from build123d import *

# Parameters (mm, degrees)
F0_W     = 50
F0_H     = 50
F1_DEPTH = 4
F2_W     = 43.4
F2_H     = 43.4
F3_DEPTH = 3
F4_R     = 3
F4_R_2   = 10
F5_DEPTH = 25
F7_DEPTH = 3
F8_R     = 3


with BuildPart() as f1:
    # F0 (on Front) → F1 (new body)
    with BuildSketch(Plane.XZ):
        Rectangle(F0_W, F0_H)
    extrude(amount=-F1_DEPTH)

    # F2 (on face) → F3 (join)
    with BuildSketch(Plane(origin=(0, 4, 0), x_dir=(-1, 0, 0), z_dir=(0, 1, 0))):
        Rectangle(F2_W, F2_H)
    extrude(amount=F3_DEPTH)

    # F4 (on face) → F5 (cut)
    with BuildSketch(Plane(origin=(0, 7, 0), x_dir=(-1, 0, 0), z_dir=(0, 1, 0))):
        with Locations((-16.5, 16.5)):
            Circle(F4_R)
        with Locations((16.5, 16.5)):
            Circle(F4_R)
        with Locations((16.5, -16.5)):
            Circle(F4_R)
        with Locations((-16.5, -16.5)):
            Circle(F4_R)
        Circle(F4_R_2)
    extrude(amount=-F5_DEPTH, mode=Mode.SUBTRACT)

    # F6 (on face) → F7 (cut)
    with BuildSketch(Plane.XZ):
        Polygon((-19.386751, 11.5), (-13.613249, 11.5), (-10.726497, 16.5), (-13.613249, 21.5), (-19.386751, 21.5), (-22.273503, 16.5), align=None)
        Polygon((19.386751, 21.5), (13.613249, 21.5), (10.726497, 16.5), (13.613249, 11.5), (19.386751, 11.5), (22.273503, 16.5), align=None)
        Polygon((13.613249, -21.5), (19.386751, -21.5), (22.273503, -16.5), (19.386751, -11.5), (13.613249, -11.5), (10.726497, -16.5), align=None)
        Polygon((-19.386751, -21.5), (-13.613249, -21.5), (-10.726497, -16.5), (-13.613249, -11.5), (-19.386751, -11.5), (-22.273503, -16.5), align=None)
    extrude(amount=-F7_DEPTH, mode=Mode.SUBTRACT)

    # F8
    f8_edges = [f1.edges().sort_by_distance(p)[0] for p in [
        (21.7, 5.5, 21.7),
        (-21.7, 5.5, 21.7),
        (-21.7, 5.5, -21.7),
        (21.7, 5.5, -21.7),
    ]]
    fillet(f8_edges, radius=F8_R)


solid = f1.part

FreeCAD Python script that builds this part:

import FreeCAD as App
import Part
import Sketcher

V = App.Vector
Q = App.Units.Quantity


def edges_at(feature, points):
    """Names of the edges that pass closest to the given points."""
    edges = feature.Shape.Edges
    near = lambda p: min(range(len(edges)), key=lambda i: edges[i].distToShape(Part.Vertex(*p))[0])
    return sorted({f"Edge{near(p) + 1}" for p in points})


def add_polygon(sketch, points):
    """Adds a closed chain of lines whose ends are joined by coincident constraints."""
    first, n = sketch.GeometryCount, len(points)
    for a, b in zip(points, points[1:] + points[:1]):
        sketch.addGeometry(Part.LineSegment(App.Vector(*a, 0), App.Vector(*b, 0)), False)
    for i in range(n):
        sketch.addConstraint(Sketcher.Constraint("Coincident", first + i, 2, first + (i + 1) % n, 1))

doc = App.newDocument("Part")
body = doc.addObject("PartDesign::Body", "Body")

# Sketch on XZ plane
sketch1 = body.newObject("Sketcher::SketchObject", "Sketch")
sketch1.AttachmentSupport = (doc.getObject("XZ_Plane"), [""])
sketch1.MapMode = "FlatFace"
add_polygon(sketch1, [(-25, 25), (-25, -25), (25, -25), (25, 25)])  # lines 0-3
sketch1.addConstraint([
    Sketcher.Constraint("Vertical", 0),
    Sketcher.Constraint("Horizontal", 1),
    Sketcher.Constraint("Vertical", 2),
    Sketcher.Constraint("Horizontal", 3),
    Sketcher.Constraint("Symmetric", 0, 2, 2, 2, -1, 1),
    Sketcher.Constraint("Equal", 3, 0),
    Sketcher.Constraint("DistanceX", 1, 1, 1, 2, Q("50 mm")),
])
pad1 = body.newObject("PartDesign::Pad", "Pad")
pad1.Profile = sketch1
pad1.Length = 4
pad1.Reversed = True

# Sketch on XZ plane
sketch2 = body.newObject("Sketcher::SketchObject", "Sketch001")
sketch2.AttachmentSupport = (doc.getObject("XZ_Plane"), [""])
sketch2.MapMode = "FlatFace"
sketch2.AttachmentOffset = App.Placement(V(0, 0, -4), App.Rotation())
add_polygon(sketch2, [(22, 22), (22, -22), (-22, -22), (-22, 22)])  # lines 0-3
sketch2.addConstraint([
    Sketcher.Constraint("Vertical", 0),
    Sketcher.Constraint("Horizontal", 1),
    Sketcher.Constraint("Vertical", 2),
    Sketcher.Constraint("Horizontal", 3),
    Sketcher.Constraint("Symmetric", 0, 2, 2, 2, -1, 1),
    Sketcher.Constraint("Equal", 3, 0),
    Sketcher.Constraint("DistanceX", 1, 2, 1, 1, Q("43.4 mm")),
])
pad2 = body.newObject("PartDesign::Pad", "Pad001")
pad2.Profile = sketch2
pad2.Length = 3
pad2.Reversed = True

# Sketch on XZ plane
sketch3 = body.newObject("Sketcher::SketchObject", "Sketch002")
sketch3.AttachmentSupport = (doc.getObject("XZ_Plane"), [""])
sketch3.MapMode = "FlatFace"
sketch3.AttachmentOffset = App.Placement(V(0, 0, -7), App.Rotation())
sketch3.addGeometry([
    Part.Circle(V(16.5, 16.5, 0), V(0, 0, 1), 3),  # 0
    Part.Circle(V(-16.5, 16.5, 0), V(0, 0, 1), 3),  # 1
    Part.Circle(V(-16.5, -16.5, 0), V(0, 0, 1), 3),  # 2
    Part.Circle(V(16.5, -16.5, 0), V(0, 0, 1), 3),  # 3
    Part.Circle(V(0, 0, 0), V(0, 0, 1), 10),  # 4
], False)
sketch3.addConstraint([
    Sketcher.Constraint("Coincident", 4, 3, -1, 1),
    Sketcher.Constraint("Equal", 0, 1),
    Sketcher.Constraint("Equal", 1, 2),
    Sketcher.Constraint("Equal", 2, 3),
    Sketcher.Constraint("Symmetric", 0, 3, 2, 3, -1, 1),
    Sketcher.Constraint("Symmetric", 1, 3, 3, 3, -1, 1),
    Sketcher.Constraint("Symmetric", 0, 3, 1, 3, -2),
    Sketcher.Constraint("Diameter", 0, Q("6 mm")),
    Sketcher.Constraint("Diameter", 4, Q("20 mm")),
    Sketcher.Constraint("DistanceX", 1, 3, 0, 3, Q("33 mm")),
    Sketcher.Constraint("DistanceY", 2, 3, 1, 3, Q("33 mm")),
])
pocket1 = body.newObject("PartDesign::Pocket", "Pocket")
pocket1.Profile = sketch3
pocket1.Length = 25
pocket1.Reversed = True

# Sketch on XZ plane
sketch4 = body.newObject("Sketcher::SketchObject", "Sketch003")
sketch4.AttachmentSupport = (doc.getObject("XZ_Plane"), [""])
sketch4.MapMode = "FlatFace"
add_polygon(sketch4, [(-19, 12), (-14, 12), (-11, 16), (-14, 22), (-19, 22), (-22, 16)])  # lines 0-5
add_polygon(sketch4, [(19, 22), (14, 22), (11, 16), (14, 12), (19, 12), (22, 16)])  # lines 6-11
add_polygon(sketch4, [(14, -22), (19, -22), (22, -16), (19, -12), (14, -12), (11, -16)])  # lines 12-17
add_polygon(sketch4, [(-19, -22), (-14, -22), (-11, -16), (-14, -12), (-19, -12), (-22, -16)])  # lines 18-23
sketch4.addConstraint([
    Sketcher.Constraint("Horizontal", 0),
    Sketcher.Constraint("Horizontal", 3),
    Sketcher.Constraint("Horizontal", 6),
    Sketcher.Constraint("Horizontal", 9),
    Sketcher.Constraint("Horizontal", 12),
    Sketcher.Constraint("Horizontal", 15),
    Sketcher.Constraint("Horizontal", 18),
    Sketcher.Constraint("Horizontal", 21),
    Sketcher.Constraint("Symmetric", 3, 2, 12, 2, -1, 1),
    Sketcher.Constraint("Symmetric", 4, 2, 13, 2, -1, 1),
    Sketcher.Constraint("Symmetric", 5, 2, 14, 2, -1, 1),
    Sketcher.Constraint("Symmetric", 1, 2, 16, 2, -1, 1),
    Sketcher.Constraint("Symmetric", 6, 2, 18, 2, -1, 1),
    Sketcher.Constraint("Symmetric", 7, 2, 19, 2, -1, 1),
    Sketcher.Constraint("Symmetric", 8, 2, 20, 2, -1, 1),
    Sketcher.Constraint("Symmetric", 10, 2, 22, 2, -1, 1),
    Sketcher.Constraint("Symmetric", 2, 2, 6, 2, -2),
    Sketcher.Constraint("Symmetric", 1, 2, 7, 2, -2),
    Sketcher.Constraint("Symmetric", 0, 2, 8, 2, -2),
    Sketcher.Constraint("Symmetric", 4, 2, 10, 2, -2),
    Sketcher.Constraint("Parallel", 1, 4),
    Sketcher.Constraint("Parallel", 2, 5),
    Sketcher.Constraint("Parallel", 4, 7),
    Sketcher.Constraint("Parallel", 7, 10),
    Sketcher.Constraint("Parallel", 8, 11),
    Sketcher.Constraint("Parallel", 13, 16),
    Sketcher.Constraint("Parallel", 14, 17),
    Sketcher.Constraint("Parallel", 19, 22),
    Sketcher.Constraint("Parallel", 20, 23),
    Sketcher.Constraint("Horizontal", 1, 2, 4, 2),
    Sketcher.Constraint("Vertical", 0, 2, 2, 2),
    Sketcher.Constraint("Angle", 1, Q("59.999994 deg")),
    Sketcher.Constraint("DistanceY", 0, 2, 1, 2, Q("5 mm")),
    Sketcher.Constraint("DistanceX", 3, 2, 6, 2, Q("33 mm")),
    Sketcher.Constraint("DistanceY", 12, 2, 9, 2, Q("33 mm")),
    Sketcher.Constraint("DistanceX", 0, 1, 0, 2, Q("5.773502 mm")),
])
pocket2 = body.newObject("PartDesign::Pocket", "Pocket001")
pocket2.Profile = sketch4
pocket2.Length = 3
doc.recompute()

fillet = body.newObject("PartDesign::Fillet", "Fillet")
fillet.Base = (pocket2, edges_at(pocket2, [
    (21.7, 5.5, 21.7),
    (-21.7, 5.5, 21.7),
    (-21.7, 5.5, -21.7),
    (21.7, 5.5, -21.7),
]))
fillet.Radius = 3

doc.recompute()
